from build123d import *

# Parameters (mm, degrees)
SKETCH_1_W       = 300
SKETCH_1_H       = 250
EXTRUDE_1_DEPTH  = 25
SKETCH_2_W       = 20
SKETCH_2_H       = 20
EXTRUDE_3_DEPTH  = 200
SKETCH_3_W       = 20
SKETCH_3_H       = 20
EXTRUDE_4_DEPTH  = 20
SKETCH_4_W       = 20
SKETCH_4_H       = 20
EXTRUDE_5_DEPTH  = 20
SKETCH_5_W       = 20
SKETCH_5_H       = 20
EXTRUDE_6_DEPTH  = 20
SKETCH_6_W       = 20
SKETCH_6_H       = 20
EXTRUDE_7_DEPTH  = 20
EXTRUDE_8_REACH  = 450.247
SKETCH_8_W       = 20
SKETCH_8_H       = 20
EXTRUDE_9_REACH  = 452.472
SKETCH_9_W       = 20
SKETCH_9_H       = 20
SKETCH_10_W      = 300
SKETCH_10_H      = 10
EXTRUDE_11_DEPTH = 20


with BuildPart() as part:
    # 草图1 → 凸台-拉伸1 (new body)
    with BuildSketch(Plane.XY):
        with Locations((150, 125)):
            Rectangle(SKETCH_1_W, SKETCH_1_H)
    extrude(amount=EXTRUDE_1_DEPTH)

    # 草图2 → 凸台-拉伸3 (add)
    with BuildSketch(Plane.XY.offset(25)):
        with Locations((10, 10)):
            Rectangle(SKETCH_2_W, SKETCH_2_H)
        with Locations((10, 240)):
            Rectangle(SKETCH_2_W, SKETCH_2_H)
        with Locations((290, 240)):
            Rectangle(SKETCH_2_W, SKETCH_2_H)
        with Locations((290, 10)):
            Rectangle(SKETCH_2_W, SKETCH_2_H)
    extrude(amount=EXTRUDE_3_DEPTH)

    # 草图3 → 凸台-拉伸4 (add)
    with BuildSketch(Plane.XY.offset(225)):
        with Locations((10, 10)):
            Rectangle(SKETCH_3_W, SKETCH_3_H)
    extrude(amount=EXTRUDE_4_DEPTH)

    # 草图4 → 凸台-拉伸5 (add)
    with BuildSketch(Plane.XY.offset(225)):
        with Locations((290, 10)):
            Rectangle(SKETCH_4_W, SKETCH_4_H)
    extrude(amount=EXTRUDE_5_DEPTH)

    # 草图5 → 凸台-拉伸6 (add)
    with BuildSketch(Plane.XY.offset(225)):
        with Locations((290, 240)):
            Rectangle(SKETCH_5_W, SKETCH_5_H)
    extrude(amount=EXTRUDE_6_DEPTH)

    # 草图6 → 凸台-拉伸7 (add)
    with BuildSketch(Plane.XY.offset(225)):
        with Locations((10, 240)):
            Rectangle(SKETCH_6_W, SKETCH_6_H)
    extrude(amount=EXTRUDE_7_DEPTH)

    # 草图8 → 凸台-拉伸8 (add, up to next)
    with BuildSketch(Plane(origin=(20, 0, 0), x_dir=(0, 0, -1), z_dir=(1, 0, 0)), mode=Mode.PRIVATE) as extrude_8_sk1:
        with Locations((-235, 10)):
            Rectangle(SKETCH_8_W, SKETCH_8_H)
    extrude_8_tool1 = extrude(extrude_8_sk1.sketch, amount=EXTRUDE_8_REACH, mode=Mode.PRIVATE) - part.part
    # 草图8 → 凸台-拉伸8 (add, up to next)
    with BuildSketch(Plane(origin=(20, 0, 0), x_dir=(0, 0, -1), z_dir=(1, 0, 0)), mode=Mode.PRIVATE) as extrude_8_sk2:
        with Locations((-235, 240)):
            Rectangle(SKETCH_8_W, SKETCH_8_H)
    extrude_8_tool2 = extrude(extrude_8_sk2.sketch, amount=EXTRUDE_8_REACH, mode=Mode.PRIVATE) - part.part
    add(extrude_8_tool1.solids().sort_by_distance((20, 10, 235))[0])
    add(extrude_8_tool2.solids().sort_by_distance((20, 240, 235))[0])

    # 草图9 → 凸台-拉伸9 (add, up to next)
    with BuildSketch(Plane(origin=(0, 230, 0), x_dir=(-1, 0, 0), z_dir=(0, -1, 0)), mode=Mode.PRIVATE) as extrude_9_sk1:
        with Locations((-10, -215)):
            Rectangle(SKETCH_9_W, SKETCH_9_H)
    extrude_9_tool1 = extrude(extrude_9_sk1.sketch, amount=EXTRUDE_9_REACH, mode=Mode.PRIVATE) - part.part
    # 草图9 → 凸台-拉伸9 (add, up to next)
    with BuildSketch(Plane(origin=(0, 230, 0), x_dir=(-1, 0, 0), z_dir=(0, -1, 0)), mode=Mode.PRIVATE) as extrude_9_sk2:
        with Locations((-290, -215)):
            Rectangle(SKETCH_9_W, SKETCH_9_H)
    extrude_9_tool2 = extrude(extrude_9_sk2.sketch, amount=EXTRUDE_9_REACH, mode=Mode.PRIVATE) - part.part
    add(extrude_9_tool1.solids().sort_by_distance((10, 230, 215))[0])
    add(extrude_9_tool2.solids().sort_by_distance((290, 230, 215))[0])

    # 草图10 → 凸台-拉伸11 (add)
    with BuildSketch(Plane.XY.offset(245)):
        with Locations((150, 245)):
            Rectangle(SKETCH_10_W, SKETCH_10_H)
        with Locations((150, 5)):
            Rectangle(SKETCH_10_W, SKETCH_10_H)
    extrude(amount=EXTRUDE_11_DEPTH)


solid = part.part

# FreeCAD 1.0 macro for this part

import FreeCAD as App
import Part
import Sketcher
from FreeCAD import Vector


def add_polygon(sketch, points):
    """Adds a closed chain of lines whose ends are joined by coincident constraints."""
    first, n = sketch.GeometryCount, len(points)
    for a, b in zip(points, points[1:] + points[:1]):
        sketch.addGeometry(Part.LineSegment(App.Vector(*a, 0), App.Vector(*b, 0)), False)
    for i in range(n):
        sketch.addConstraint(Sketcher.Constraint("Coincident", first + i, 2, first + (i + 1) % n, 1))

doc = App.newDocument("Part")
body = doc.addObject("PartDesign::Body", "Body")

sketch1 = doc.addObject("Sketcher::SketchObject", "Sketch")
body.addObject(sketch1)
sketch1.AttachmentSupport = (doc.XY_Plane, [""])
sketch1.MapMode = "FlatFace"
add_polygon(sketch1, [(0, 250), (0, 0), (300, 0), (300, 250)])
sketch1.addConstraint([
    Sketcher.Constraint("Vertical", 0),
    Sketcher.Constraint("Horizontal", 1),
    Sketcher.Constraint("Vertical", 2),
    Sketcher.Constraint("Horizontal", 3),
    Sketcher.Constraint("Coincident", 0, 2, -1, 1),
    Sketcher.Constraint("DistanceX", 1, 1, 1, 2, 300.0),
    Sketcher.Constraint("DistanceY", 0, 2, 0, 1, 250.0),
])
pad1 = doc.addObject("PartDesign::Pad", "Pad")
body.addObject(pad1)
pad1.Profile = sketch1
pad1.Length = 25

sketch2 = doc.addObject("Sketcher::SketchObject", "Sketch001")
body.addObject(sketch2)
sketch2.AttachmentSupport = (doc.XY_Plane, [""])
sketch2.MapMode = "FlatFace"
sketch2.AttachmentOffset = App.Placement(Vector(0, 0, 25), App.Rotation())
add_polygon(sketch2, [(0, 20), (0, 0), (20, 0), (20, 20)])
add_polygon(sketch2, [(0, 250), (0, 230), (20, 230), (20, 250)])
add_polygon(sketch2, [(280, 250), (280, 230), (300, 230), (300, 250)])
add_polygon(sketch2, [(280, 20), (280, 0), (300, 0), (300, 20)])
sketch2.addConstraint([
    Sketcher.Constraint("Vertical", 0),
    Sketcher.Constraint("Horizontal", 1),
    Sketcher.Constraint("Vertical", 2),
    Sketcher.Constraint("Horizontal", 3),
    Sketcher.Constraint("Vertical", 4),
    Sketcher.Constraint("Horizontal", 5),
    Sketcher.Constraint("Vertical", 6),
    Sketcher.Constraint("Horizontal", 7),
    Sketcher.Constraint("Vertical", 8),
    Sketcher.Constraint("Horizontal", 9),
    Sketcher.Constraint("Vertical", 10),
    Sketcher.Constraint("Horizontal", 11),
    Sketcher.Constraint("Vertical", 12),
    Sketcher.Constraint("Horizontal", 13),
    Sketcher.Constraint("Vertical", 14),
    Sketcher.Constraint("Horizontal", 15),
    Sketcher.Constraint("Coincident", 0, 2, -1, 1),
    Sketcher.Constraint("PointOnObject", 4, 2, -2),
    Sketcher.Constraint("PointOnObject", 12, 2, -1),
    Sketcher.Constraint("Horizontal", 5, 2, 8, 2),
    Sketcher.Constraint("Horizontal", 7, 2, 10, 2),
    Sketcher.Constraint("Horizontal", 3, 2, 14, 2),
    Sketcher.Constraint("Vertical", 2, 2, 5, 2),
    Sketcher.Constraint("Vertical", 11, 2, 12, 2),
    Sketcher.Constraint("Vertical", 10, 2, 13, 2),
    Sketcher.Constraint("Equal", 7, 9),
    Sketcher.Constraint("Equal", 15, 0),
    Sketcher.Constraint("Equal", 2, 4),
    Sketcher.Constraint("DistanceX", 1, 1, 1, 2, 20.0),
    Sketcher.Constraint("DistanceY", -1, 1, 4, 2, 230.0),
    Sketcher.Constraint("DistanceX", -1, 1, 8, 2, 280.0),
])
pad2 = doc.addObject("PartDesign::Pad", "Pad001")
body.addObject(pad2)
pad2.Profile = sketch2
pad2.Length = 200

sketch3 = doc.addObject("Sketcher::SketchObject", "Sketch002")
body.addObject(sketch3)
sketch3.AttachmentSupport = (doc.XY_Plane, [""])
sketch3.MapMode = "FlatFace"
sketch3.AttachmentOffset = App.Placement(Vector(0, 0, 225), App.Rotation())
add_polygon(sketch3, [(0, 20), (0, 0), (20, 0), (20, 20)])
sketch3.addConstraint([
    Sketcher.Constraint("Vertical", 0),
    Sketcher.Constraint("Horizontal", 1),
    Sketcher.Constraint("Vertical", 2),
    Sketcher.Constraint("Horizontal", 3),
    Sketcher.Constraint("Coincident", 0, 2, -1, 1),
    Sketcher.Constraint("Equal", 3, 0),
    Sketcher.Constraint("DistanceX", 1, 1, 1, 2, 20.0),
])
pad3 = doc.addObject("PartDesign::Pad", "Pad002")
body.addObject(pad3)
pad3.Profile = sketch3
pad3.Length = 20

sketch4 = doc.addObject("Sketcher::SketchObject", "Sketch003")
body.addObject(sketch4)
sketch4.AttachmentSupport = (doc.XY_Plane, [""])
sketch4.MapMode = "FlatFace"
sketch4.AttachmentOffset = App.Placement(Vector(0, 0, 225), App.Rotation())
add_polygon(sketch4, [(280, 20), (280, 0), (300, 0), (300, 20)])
sketch4.addConstraint([
    Sketcher.Constraint("Vertical", 0),
    Sketcher.Constraint("Horizontal", 1),
    Sketcher.Constraint("Vertical", 2),
    Sketcher.Constraint("Horizontal", 3),
    Sketcher.Constraint("PointOnObject", 0, 2, -1),
    Sketcher.Constraint("Equal", 3, 0),
    Sketcher.Constraint("DistanceX", 1, 1, 1, 2, 20.0),
    Sketcher.Constraint("DistanceX", -1, 1, 0, 2, 280.0),
])
pad4 = doc.addObject("PartDesign::Pad", "Pad003")
body.addObject(pad4)
pad4.Profile = sketch4
pad4.Length = 20

sketch5 = doc.addObject("Sketcher::SketchObject", "Sketch004")
body.addObject(sketch5)
sketch5.AttachmentSupport = (doc.XY_Plane, [""])
sketch5.MapMode = "FlatFace"
sketch5.AttachmentOffset = App.Placement(Vector(0, 0, 225), App.Rotation())
add_polygon(sketch5, [(280, 250), (280, 230), (300, 230), (300, 250)])
sketch5.addConstraint([
    Sketcher.Constraint("Vertical", 0),
    Sketcher.Constraint("Horizontal", 1),
    Sketcher.Constraint("Vertical", 2),
    Sketcher.Constraint("Horizontal", 3),
    Sketcher.Constraint("Equal", 3, 0),
    Sketcher.Constraint("DistanceX", 1, 1, 1, 2, 20.0),
    Sketcher.Constraint("DistanceX", -1, 1, 0, 2, 280.0),
    Sketcher.Constraint("DistanceY", -1, 1, 0, 2, 230.0),
])
pad5 = doc.addObject("PartDesign::Pad", "Pad004")
body.addObject(pad5)
pad5.Profile = sketch5
pad5.Length = 20

sketch6 = doc.addObject("Sketcher::SketchObject", "Sketch005")
body.addObject(sketch6)
sketch6.AttachmentSupport = (doc.XY_Plane, [""])
sketch6.MapMode = "FlatFace"
sketch6.AttachmentOffset = App.Placement(Vector(0, 0, 225), App.Rotation())
add_polygon(sketch6, [(0, 250), (0, 230), (20, 230), (20, 250)])
sketch6.addConstraint([
    Sketcher.Constraint("Vertical", 0),
    Sketcher.Constraint("Horizontal", 1),
    Sketcher.Constraint("Vertical", 2),
    Sketcher.Constraint("Horizontal", 3),
    Sketcher.Constraint("PointOnObject", 0, 2, -2),
    Sketcher.Constraint("Equal", 3, 0),
    Sketcher.Constraint("DistanceX", 1, 1, 1, 2, 20.0),
    Sketcher.Constraint("DistanceY", -1, 1, 0, 2, 230.0),
])
pad6 = doc.addObject("PartDesign::Pad", "Pad005")
body.addObject(pad6)
pad6.Profile = sketch6
pad6.Length = 20

sketch7 = doc.addObject("Sketcher::SketchObject", "Sketch006")
body.addObject(sketch7)
sketch7.AttachmentSupport = (doc.YZ_Plane, [""])
sketch7.MapMode = "FlatFace"
sketch7.AttachmentOffset = App.Placement(Vector(0, 0, 20), App.Rotation())
add_polygon(sketch7, [(20, 245), (0, 245), (0, 225), (20, 225)])
sketch7.addConstraint([
    Sketcher.Constraint("Horizontal", 0),
    Sketcher.Constraint("Vertical", 1),
    Sketcher.Constraint("Horizontal", 2),
    Sketcher.Constraint("Vertical", 3),
    Sketcher.Constraint("PointOnObject", 0, 2, -2),
    Sketcher.Constraint("Equal", 2, 1),
    Sketcher.Constraint("DistanceX", 0, 2, 0, 1, 20.0),
    Sketcher.Constraint("DistanceY", -1, 1, 0, 2, 245.0),
])
pad7 = doc.addObject("PartDesign::Pad", "Pad006")
body.addObject(pad7)
pad7.Profile = sketch7
pad7.Type = "UpToFirst"

sketch8 = doc.addObject("Sketcher::SketchObject", "Sketch007")
body.addObject(sketch8)
sketch8.AttachmentSupport = (doc.YZ_Plane, [""])
sketch8.MapMode = "FlatFace"
sketch8.AttachmentOffset = App.Placement(Vector(0, 0, 20), App.Rotation())
add_polygon(sketch8, [(250, 245), (230, 245), (230, 225), (250, 225)])
sketch8.addConstraint([
    Sketcher.Constraint("Horizontal", 0),
    Sketcher.Constraint("Vertical", 1),
    Sketcher.Constraint("Horizontal", 2),
    Sketcher.Constraint("Vertical", 3),
    Sketcher.Constraint("Equal", 2, 1),
    Sketcher.Constraint("DistanceX", 0, 2, 0, 1, 20.0),
    Sketcher.Constraint("DistanceX", -1, 1, 0, 2, 230.0),
    Sketcher.Constraint("DistanceY", -1, 1, 0, 2, 245.0),
])
pad8 = doc.addObject("PartDesign::Pad", "Pad007")
body.addObject(pad8)
pad8.Profile = sketch8
pad8.Type = "UpToFirst"

sketch9 = doc.addObject("Sketcher::SketchObject", "Sketch008")
body.addObject(sketch9)
sketch9.AttachmentSupport = (doc.XZ_Plane, [""])
sketch9.MapMode = "FlatFace"
sketch9.AttachmentOffset = App.Placement(Vector(0, 0, -230), App.Rotation())
add_polygon(sketch9, [(20, 205), (20, 225), (0, 225), (0, 205)])
sketch9.addConstraint([
    Sketcher.Constraint("Vertical", 0),
    Sketcher.Constraint("Horizontal", 1),
    Sketcher.Constraint("Vertical", 2),
    Sketcher.Constraint("Horizontal", 3),
    Sketcher.Constraint("PointOnObject", 1, 2, -2),
    Sketcher.Constraint("Equal", 3, 0),
    Sketcher.Constraint("DistanceX", 1, 2, 1, 1, 20.0),
    Sketcher.Constraint("DistanceY", -1, 1, 0, 2, 225.0),
])
pad9 = doc.addObject("PartDesign::Pad", "Pad008")
body.addObject(pad9)
pad9.Profile = sketch9
pad9.Type = "UpToFirst"

sketch10 = doc.addObject("Sketcher::SketchObject", "Sketch009")
body.addObject(sketch10)
sketch10.AttachmentSupport = (doc.XZ_Plane, [""])
sketch10.MapMode = "FlatFace"
sketch10.AttachmentOffset = App.Placement(Vector(0, 0, -230), App.Rotation())
add_polygon(sketch10, [(300, 205), (300, 225), (280, 225), (280, 205)])
sketch10.addConstraint([
    Sketcher.Constraint("Vertical", 0),
    Sketcher.Constraint("Horizontal", 1),
    Sketcher.Constraint("Vertical", 2),
    Sketcher.Constraint("Horizontal", 3),
    Sketcher.Constraint("Equal", 3, 0),
    Sketcher.Constraint("DistanceX", 1, 2, 1, 1, 20.0),
    Sketcher.Constraint("DistanceX", -1, 1, 0, 2, 300.0),
    Sketcher.Constraint("DistanceY", -1, 1, 0, 2, 225.0),
])
pad10 = doc.addObject("PartDesign::Pad", "Pad009")
body.addObject(pad10)
pad10.Profile = sketch10
pad10.Type = "UpToFirst"

sketch11 = doc.addObject("Sketcher::SketchObject", "Sketch010")
body.addObject(sketch11)
sketch11.AttachmentSupport = (doc.XY_Plane, [""])
sketch11.MapMode = "FlatFace"
sketch11.AttachmentOffset = App.Placement(Vector(0, 0, 245), App.Rotation())
add_polygon(sketch11, [(0, 250), (0, 240), (300, 240), (300, 250)])
add_polygon(sketch11, [(0, 10), (0, 0), (300, 0), (300, 10)])
sketch11.addConstraint([
    Sketcher.Constraint("Vertical", 0),
    Sketcher.Constraint("Horizontal", 1),
    Sketcher.Constraint("Vertical", 2),
    Sketcher.Constraint("Horizontal", 3),
    Sketcher.Constraint("Vertical", 4),
    Sketcher.Constraint("Horizontal", 5),
    Sketcher.Constraint("Vertical", 6),
    Sketcher.Constraint("Horizontal", 7),
    Sketcher.Constraint("Coincident", 4, 2, -1, 1),
    Sketcher.Constraint("PointOnObject", 0, 2, -2),
    Sketcher.Constraint("Vertical", 2, 2, 5, 2),
    Sketcher.Constraint("Equal", 2, 4),
    Sketcher.Constraint("DistanceX", 1, 1, 1, 2, 300.0),
    Sketcher.Constraint("DistanceY", 0, 2, 0, 1, 10.0),
    Sketcher.Constraint("DistanceY", -1, 1, 0, 2, 240.0),
])
pad11 = doc.addObject("PartDesign::Pad", "Pad010")
body.addObject(pad11)
pad11.Profile = sketch11
pad11.Length = 20

doc.recompute()
